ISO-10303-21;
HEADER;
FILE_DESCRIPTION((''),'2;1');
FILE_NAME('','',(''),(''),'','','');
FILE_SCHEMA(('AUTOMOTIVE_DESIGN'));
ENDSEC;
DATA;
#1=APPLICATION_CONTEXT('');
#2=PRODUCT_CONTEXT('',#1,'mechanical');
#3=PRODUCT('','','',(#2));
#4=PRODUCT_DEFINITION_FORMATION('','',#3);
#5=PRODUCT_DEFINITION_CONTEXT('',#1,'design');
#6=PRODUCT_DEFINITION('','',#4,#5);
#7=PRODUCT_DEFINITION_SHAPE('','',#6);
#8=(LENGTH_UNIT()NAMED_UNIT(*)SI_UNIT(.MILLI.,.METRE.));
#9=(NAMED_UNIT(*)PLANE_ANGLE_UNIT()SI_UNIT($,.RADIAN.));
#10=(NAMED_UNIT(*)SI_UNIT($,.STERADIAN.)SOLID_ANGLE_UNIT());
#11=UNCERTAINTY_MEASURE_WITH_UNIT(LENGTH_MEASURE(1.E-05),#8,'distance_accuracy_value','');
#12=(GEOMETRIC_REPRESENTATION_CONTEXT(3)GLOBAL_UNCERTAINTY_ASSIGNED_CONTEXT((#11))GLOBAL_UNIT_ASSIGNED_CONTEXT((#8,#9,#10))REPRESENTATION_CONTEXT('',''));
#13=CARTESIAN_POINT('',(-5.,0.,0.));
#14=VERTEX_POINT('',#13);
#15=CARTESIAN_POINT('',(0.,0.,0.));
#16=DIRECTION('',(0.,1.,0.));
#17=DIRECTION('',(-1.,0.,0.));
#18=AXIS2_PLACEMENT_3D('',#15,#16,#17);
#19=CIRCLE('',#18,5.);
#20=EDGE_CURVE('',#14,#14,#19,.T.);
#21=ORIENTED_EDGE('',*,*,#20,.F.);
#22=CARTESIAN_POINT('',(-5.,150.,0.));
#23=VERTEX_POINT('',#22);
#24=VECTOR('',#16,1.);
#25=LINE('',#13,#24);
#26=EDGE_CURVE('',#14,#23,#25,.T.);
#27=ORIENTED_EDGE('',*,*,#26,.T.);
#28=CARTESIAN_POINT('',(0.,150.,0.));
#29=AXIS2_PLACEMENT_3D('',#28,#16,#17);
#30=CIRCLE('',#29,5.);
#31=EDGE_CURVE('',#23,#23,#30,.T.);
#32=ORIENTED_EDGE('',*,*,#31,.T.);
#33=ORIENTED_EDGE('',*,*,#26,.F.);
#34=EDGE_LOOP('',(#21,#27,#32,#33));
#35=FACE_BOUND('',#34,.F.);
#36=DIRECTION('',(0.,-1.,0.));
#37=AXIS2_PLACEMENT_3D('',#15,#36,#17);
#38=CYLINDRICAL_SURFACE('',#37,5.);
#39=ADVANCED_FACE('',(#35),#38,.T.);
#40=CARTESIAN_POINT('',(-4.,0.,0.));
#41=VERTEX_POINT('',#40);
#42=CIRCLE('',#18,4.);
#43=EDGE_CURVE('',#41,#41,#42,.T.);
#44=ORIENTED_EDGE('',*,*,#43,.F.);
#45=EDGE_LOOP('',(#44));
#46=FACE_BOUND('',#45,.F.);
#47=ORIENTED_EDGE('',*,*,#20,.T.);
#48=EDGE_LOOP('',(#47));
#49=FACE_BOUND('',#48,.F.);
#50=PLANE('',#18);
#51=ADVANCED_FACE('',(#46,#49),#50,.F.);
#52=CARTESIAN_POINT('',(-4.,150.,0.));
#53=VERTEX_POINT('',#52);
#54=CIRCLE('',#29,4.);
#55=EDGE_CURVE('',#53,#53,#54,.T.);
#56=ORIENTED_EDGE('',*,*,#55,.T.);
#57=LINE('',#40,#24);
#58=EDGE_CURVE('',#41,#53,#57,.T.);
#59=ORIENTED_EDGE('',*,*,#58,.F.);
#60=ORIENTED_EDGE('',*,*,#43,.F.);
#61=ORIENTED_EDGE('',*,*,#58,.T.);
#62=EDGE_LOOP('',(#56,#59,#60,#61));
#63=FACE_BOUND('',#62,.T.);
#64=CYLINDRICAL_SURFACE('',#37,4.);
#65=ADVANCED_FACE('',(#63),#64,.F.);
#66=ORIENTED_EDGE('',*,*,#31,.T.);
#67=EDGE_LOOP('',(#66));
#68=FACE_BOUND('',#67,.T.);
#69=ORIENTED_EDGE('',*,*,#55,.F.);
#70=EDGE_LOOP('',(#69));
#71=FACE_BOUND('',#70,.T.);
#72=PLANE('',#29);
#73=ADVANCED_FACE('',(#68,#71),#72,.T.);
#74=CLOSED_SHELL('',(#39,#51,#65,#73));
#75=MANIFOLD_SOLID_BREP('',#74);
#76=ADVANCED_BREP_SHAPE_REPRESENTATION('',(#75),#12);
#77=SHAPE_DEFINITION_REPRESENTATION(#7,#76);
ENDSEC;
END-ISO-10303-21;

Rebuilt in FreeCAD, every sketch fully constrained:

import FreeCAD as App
import Part
import Sketcher

V = App.Vector
Q = App.Units.Quantity

doc = App.newDocument("Part")
body = doc.addObject("PartDesign::Body", "Body")

sketch1 = body.newObject("Sketcher::SketchObject", "Sketch")
sketch1.AttachmentSupport = (doc.getObject("XZ_Plane"), [""])
sketch1.MapMode = "FlatFace"
sketch1.addGeometry([
    Part.Circle(V(0, 0, 0), V(0, 0, 1), 5),
    Part.Circle(V(0, 0, 0), V(0, 0, 1), 4),
], False)
sketch1.addConstraint([
    Sketcher.Constraint("Coincident", 0, 3, -1, 1),
    Sketcher.Constraint("Coincident", 1, 3, -1, 1),
    Sketcher.Constraint("Diameter", 0, Q("10 mm")),
    Sketcher.Constraint("Diameter", 1, Q("8 mm")),
])
pad1 = body.newObject("PartDesign::Pad", "Pad")
pad1.Profile = sketch1
pad1.Length = 150
pad1.Reversed = True

doc.recompute()
